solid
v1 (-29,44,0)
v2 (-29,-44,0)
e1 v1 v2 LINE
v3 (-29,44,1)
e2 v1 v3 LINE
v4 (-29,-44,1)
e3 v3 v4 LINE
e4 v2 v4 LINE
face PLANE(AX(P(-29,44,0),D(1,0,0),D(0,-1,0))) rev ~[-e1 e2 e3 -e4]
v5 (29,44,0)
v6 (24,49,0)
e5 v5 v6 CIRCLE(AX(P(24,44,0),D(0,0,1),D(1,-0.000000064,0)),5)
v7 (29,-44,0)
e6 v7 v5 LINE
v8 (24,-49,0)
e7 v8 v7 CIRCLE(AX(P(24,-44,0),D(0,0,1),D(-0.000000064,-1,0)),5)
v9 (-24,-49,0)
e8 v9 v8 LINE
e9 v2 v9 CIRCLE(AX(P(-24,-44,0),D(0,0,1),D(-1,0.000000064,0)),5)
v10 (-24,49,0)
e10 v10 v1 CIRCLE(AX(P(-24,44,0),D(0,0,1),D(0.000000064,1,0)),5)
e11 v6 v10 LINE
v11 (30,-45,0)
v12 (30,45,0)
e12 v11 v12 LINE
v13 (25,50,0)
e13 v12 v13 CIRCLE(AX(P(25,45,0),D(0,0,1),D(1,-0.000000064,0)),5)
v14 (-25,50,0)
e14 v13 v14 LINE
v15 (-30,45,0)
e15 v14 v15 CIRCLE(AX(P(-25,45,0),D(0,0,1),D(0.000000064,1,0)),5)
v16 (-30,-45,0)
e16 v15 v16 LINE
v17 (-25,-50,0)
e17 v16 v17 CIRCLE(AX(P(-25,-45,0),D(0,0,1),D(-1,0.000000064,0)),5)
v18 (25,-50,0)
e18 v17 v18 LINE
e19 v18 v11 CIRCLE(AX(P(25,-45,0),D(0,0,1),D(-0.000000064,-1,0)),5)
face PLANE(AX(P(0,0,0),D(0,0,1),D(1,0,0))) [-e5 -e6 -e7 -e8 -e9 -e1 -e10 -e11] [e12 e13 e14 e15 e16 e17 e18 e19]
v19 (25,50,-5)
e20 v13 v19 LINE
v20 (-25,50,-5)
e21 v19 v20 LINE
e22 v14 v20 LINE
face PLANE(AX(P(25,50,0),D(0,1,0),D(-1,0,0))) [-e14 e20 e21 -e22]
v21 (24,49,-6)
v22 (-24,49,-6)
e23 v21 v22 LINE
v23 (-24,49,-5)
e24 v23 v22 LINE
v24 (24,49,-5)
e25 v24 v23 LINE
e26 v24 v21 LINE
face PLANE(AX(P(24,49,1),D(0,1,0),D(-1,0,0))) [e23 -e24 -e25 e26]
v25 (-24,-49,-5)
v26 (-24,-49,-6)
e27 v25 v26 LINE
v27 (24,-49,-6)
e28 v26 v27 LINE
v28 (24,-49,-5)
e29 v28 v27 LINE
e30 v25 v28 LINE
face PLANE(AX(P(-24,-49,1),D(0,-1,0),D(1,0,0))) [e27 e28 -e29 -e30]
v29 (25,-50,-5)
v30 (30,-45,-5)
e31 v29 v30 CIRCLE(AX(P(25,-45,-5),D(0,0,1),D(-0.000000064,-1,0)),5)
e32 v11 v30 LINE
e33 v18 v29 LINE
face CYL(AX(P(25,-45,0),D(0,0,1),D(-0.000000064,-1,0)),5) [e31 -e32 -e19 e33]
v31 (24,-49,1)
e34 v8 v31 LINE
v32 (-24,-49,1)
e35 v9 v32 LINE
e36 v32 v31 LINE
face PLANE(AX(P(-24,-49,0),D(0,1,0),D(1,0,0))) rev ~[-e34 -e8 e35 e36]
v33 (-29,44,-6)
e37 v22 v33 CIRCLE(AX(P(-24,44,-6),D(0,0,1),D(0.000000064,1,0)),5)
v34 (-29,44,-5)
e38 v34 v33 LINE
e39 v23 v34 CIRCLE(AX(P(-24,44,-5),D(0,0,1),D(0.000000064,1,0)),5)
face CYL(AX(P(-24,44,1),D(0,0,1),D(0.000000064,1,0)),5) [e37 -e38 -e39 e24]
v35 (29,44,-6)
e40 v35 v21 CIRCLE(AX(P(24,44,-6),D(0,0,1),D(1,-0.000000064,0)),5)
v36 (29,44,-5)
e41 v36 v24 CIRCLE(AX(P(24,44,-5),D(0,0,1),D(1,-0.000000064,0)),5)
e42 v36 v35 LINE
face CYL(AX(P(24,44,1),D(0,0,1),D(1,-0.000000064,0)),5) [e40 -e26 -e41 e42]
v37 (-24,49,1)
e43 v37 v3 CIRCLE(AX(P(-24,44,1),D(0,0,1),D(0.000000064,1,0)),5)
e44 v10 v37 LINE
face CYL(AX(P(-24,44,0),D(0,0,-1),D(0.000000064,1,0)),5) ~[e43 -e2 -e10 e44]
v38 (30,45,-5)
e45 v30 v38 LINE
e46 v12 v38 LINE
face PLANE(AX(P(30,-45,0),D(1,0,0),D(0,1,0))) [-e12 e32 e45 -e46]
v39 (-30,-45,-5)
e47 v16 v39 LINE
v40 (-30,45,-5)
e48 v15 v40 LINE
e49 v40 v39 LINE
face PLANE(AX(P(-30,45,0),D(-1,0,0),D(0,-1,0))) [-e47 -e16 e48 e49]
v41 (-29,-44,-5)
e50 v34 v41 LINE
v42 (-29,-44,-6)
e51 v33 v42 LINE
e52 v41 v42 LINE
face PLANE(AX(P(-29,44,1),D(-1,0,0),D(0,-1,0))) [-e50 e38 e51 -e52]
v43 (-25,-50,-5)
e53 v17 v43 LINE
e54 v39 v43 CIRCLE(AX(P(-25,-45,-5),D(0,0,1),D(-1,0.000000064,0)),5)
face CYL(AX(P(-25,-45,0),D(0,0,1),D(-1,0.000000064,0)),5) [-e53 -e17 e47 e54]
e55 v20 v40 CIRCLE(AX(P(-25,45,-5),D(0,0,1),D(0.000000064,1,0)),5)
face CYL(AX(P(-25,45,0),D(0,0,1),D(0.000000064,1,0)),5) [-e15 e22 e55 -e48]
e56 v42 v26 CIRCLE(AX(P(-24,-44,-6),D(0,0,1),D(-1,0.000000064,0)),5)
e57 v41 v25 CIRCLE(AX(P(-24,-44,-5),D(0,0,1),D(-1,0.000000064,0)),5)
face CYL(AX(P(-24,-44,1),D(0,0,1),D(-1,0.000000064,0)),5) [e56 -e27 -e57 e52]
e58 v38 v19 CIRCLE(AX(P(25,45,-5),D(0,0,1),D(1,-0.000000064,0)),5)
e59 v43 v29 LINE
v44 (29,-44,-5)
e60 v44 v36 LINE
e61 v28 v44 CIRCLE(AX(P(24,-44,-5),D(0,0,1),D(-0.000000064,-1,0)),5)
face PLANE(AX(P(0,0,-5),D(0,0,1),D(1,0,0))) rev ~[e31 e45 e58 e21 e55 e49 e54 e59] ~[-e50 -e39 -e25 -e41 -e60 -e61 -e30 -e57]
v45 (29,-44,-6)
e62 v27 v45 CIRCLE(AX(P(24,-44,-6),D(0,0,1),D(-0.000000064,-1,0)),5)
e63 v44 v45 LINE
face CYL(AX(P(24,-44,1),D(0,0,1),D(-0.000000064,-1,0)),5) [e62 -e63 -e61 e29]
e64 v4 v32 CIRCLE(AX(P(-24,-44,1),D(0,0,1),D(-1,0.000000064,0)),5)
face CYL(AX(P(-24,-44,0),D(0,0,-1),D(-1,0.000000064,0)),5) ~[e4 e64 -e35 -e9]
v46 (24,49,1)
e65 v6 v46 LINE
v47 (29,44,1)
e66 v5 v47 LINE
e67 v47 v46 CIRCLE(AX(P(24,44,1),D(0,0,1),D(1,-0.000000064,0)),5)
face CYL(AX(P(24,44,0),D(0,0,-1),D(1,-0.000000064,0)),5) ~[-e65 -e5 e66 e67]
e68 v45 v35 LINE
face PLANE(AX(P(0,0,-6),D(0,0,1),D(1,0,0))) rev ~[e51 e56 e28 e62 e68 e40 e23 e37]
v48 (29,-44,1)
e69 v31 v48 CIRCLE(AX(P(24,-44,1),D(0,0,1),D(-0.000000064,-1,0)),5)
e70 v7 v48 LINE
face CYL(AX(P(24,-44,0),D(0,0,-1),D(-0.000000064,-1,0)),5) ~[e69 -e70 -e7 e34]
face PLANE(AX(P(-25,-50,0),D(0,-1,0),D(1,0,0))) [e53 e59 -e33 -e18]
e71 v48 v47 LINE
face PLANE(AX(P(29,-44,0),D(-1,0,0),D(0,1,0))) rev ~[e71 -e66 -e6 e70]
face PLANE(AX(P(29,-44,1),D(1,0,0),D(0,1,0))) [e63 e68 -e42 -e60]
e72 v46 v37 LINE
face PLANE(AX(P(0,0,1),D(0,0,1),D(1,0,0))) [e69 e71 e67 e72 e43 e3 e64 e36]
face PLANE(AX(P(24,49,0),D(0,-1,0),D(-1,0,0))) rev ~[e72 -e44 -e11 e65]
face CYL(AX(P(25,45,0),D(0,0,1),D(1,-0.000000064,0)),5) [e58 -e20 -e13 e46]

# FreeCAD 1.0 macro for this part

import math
import FreeCAD as App
import Part
import Sketcher

V = App.Vector
Q = App.Units.Quantity

doc = App.newDocument("Part")
params = doc.addObject("Spreadsheet::Sheet", "Params")
for row, (alias, value) in enumerate([
    ("sketch1_radius", "5 mm"),
    ("sketch1_width", "48 mm"),
    ("sketch1_height", "88 mm"),
    ("pad1_length", "1 mm"),
    ("sketch2_radius", "5 mm"),
    ("sketch2_width", "50 mm"),
    ("sketch2_height", "90 mm"),
    ("pad2_length", "5 mm"),
    ("sketch3_radius", "5 mm"),
    ("sketch3_width", "48 mm"),
    ("sketch3_height", "88 mm"),
    ("pad3_length", "7 mm"),
], start=1):
    params.set(f"A{row}", alias)
    params.set(f"B{row}", "=" + value)
    params.setAlias(f"B{row}", alias)

body = doc.addObject("PartDesign::Body", "Body")

# Sketch on XY plane
sketch1 = body.newObject("Sketcher::SketchObject", "Sketch")
sketch1.AttachmentSupport = (doc.getObject("XY_Plane"), [""])
sketch1.MapMode = "FlatFace"
sketch1.addGeometry([
    Part.LineSegment(V(-29, 44, 0), V(-29, -44, 0)),  # 0
    Part.ArcOfCircle(Part.Circle(V(-24, -44, 0), V(0, 0, 1), 5), math.radians(180), math.radians(270)),  # 1
    Part.LineSegment(V(-24, -49, 0), V(24, -49, 0)),  # 2
    Part.ArcOfCircle(Part.Circle(V(24, -44, 0), V(0, 0, 1), 5), math.radians(-90), math.radians(0)),  # 3
    Part.LineSegment(V(29, -44, 0), V(29, 44, 0)),  # 4
    Part.ArcOfCircle(Part.Circle(V(24, 44, 0), V(0, 0, 1), 5), math.radians(0), math.radians(90)),  # 5
    Part.LineSegment(V(24, 49, 0), V(-24, 49, 0)),  # 6
    Part.ArcOfCircle(Part.Circle(V(-24, 44, 0), V(0, 0, 1), 5), math.radians(90), math.radians(180)),  # 7
], False)
sketch1.addConstraint([
    Sketcher.Constraint("Tangent", 0, 2, 1, 1),
    Sketcher.Constraint("Tangent", 1, 2, 2, 1),
    Sketcher.Constraint("Tangent", 2, 2, 3, 1),
    Sketcher.Constraint("Tangent", 3, 2, 4, 1),
    Sketcher.Constraint("Tangent", 4, 2, 5, 1),
    Sketcher.Constraint("Tangent", 5, 2, 6, 1),
    Sketcher.Constraint("Tangent", 6, 2, 7, 1),
    Sketcher.Constraint("Tangent", 7, 2, 0, 1),
    Sketcher.Constraint("Vertical", 0),
    Sketcher.Constraint("Horizontal", 2),
    Sketcher.Constraint("Vertical", 4),
    Sketcher.Constraint("Horizontal", 6),
    Sketcher.Constraint("Equal", 1, 3),
    Sketcher.Constraint("Equal", 3, 5),
    Sketcher.Constraint("Equal", 5, 7),
    Sketcher.Constraint("Symmetric", 1, 3, 5, 3, -1, 1),
    Sketcher.Constraint("Radius", 1, Q("5 mm")),
    Sketcher.Constraint("DistanceX", 2, 1, 2, 2, Q("48 mm")),
    Sketcher.Constraint("DistanceY", 0, 2, 0, 1, Q("88 mm")),
])
sketch1.setExpression("Constraints[16]", "Params.sketch1_radius")
sketch1.setExpression("Constraints[17]", "Params.sketch1_width")
sketch1.setExpression("Constraints[18]", "Params.sketch1_height")
pad1 = body.newObject("PartDesign::Pad", "Pad")
pad1.Profile = sketch1
pad1.setExpression("Length", "Params.pad1_length")

# Sketch on XY plane
sketch2 = body.newObject("Sketcher::SketchObject", "Sketch001")
sketch2.AttachmentSupport = (doc.getObject("XY_Plane"), [""])
sketch2.MapMode = "FlatFace"
sketch2.addGeometry([
    Part.LineSegment(V(-30, 45, 0), V(-30, -45, 0)),  # 0
    Part.ArcOfCircle(Part.Circle(V(-25, -45, 0), V(0, 0, 1), 5), math.radians(180), math.radians(270)),  # 1
    Part.LineSegment(V(-25, -50, 0), V(25, -50, 0)),  # 2
    Part.ArcOfCircle(Part.Circle(V(25, -45, 0), V(0, 0, 1), 5), math.radians(-90), math.radians(0)),  # 3
    Part.LineSegment(V(30, -45, 0), V(30, 45, 0)),  # 4
    Part.ArcOfCircle(Part.Circle(V(25, 45, 0), V(0, 0, 1), 5), math.radians(0), math.radians(90)),  # 5
    Part.LineSegment(V(25, 50, 0), V(-25, 50, 0)),  # 6
    Part.ArcOfCircle(Part.Circle(V(-25, 45, 0), V(0, 0, 1), 5), math.radians(90), math.radians(180)),  # 7
], False)
sketch2.addConstraint([
    Sketcher.Constraint("Tangent", 0, 2, 1, 1),
    Sketcher.Constraint("Tangent", 1, 2, 2, 1),
    Sketcher.Constraint("Tangent", 2, 2, 3, 1),
    Sketcher.Constraint("Tangent", 3, 2, 4, 1),
    Sketcher.Constraint("Tangent", 4, 2, 5, 1),
    Sketcher.Constraint("Tangent", 5, 2, 6, 1),
    Sketcher.Constraint("Tangent", 6, 2, 7, 1),
    Sketcher.Constraint("Tangent", 7, 2, 0, 1),
    Sketcher.Constraint("Vertical", 0),
    Sketcher.Constraint("Horizontal", 2),
    Sketcher.Constraint("Vertical", 4),
    Sketcher.Constraint("Horizontal", 6),
    Sketcher.Constraint("Equal", 1, 3),
    Sketcher.Constraint("Equal", 3, 5),
    Sketcher.Constraint("Equal", 5, 7),
    Sketcher.Constraint("Symmetric", 1, 3, 5, 3, -1, 1),
    Sketcher.Constraint("Radius", 1, Q("5 mm")),
    Sketcher.Constraint("DistanceX", 2, 1, 2, 2, Q("50 mm")),
    Sketcher.Constraint("DistanceY", 0, 2, 0, 1, Q("90 mm")),
])
sketch2.setExpression("Constraints[16]", "Params.sketch2_radius")
sketch2.setExpression("Constraints[17]", "Params.sketch2_width")
sketch2.setExpression("Constraints[18]", "Params.sketch2_height")
pad2 = body.newObject("PartDesign::Pad", "Pad001")
pad2.Profile = sketch2
pad2.setExpression("Length", "Params.pad2_length")
pad2.Reversed = True

# Sketch on XY plane
sketch3 = body.newObject("Sketcher::SketchObject", "Sketch002")
sketch3.AttachmentSupport = (doc.getObject("XY_Plane"), [""])
sketch3.MapMode = "FlatFace"
sketch3.AttachmentOffset = App.Placement(V(0, 0, 1), App.Rotation())
sketch3.addGeometry([
    Part.LineSegment(V(-29, 44, 0), V(-29, -44, 0)),  # 0
    Part.ArcOfCircle(Part.Circle(V(-24, -44, 0), V(0, 0, 1), 5), math.radians(180), math.radians(270)),  # 1
    Part.LineSegment(V(-24, -49, 0), V(24, -49, 0)),  # 2
    Part.ArcOfCircle(Part.Circle(V(24, -44, 0), V(0, 0, 1), 5), math.radians(-90), math.radians(0)),  # 3
    Part.LineSegment(V(29, -44, 0), V(29, 44, 0)),  # 4
    Part.ArcOfCircle(Part.Circle(V(24, 44, 0), V(0, 0, 1), 5), math.radians(0), math.radians(90)),  # 5
    Part.LineSegment(V(24, 49, 0), V(-24, 49, 0)),  # 6
    Part.ArcOfCircle(Part.Circle(V(-24, 44, 0), V(0, 0, 1), 5), math.radians(90), math.radians(180)),  # 7
], False)
sketch3.addConstraint([
    Sketcher.Constraint("Tangent", 0, 2, 1, 1),
    Sketcher.Constraint("Tangent", 1, 2, 2, 1),
    Sketcher.Constraint("Tangent", 2, 2, 3, 1),
    Sketcher.Constraint("Tangent", 3, 2, 4, 1),
    Sketcher.Constraint("Tangent", 4, 2, 5, 1),
    Sketcher.Constraint("Tangent", 5, 2, 6, 1),
    Sketcher.Constraint("Tangent", 6, 2, 7, 1),
    Sketcher.Constraint("Tangent", 7, 2, 0, 1),
    Sketcher.Constraint("Vertical", 0),
    Sketcher.Constraint("Horizontal", 2),
    Sketcher.Constraint("Vertical", 4),
    Sketcher.Constraint("Horizontal", 6),
    Sketcher.Constraint("Equal", 1, 3),
    Sketcher.Constraint("Equal", 3, 5),
    Sketcher.Constraint("Equal", 5, 7),
    Sketcher.Constraint("Symmetric", 1, 3, 5, 3, -1, 1),
    Sketcher.Constraint("Radius", 1, Q("5 mm")),
    Sketcher.Constraint("DistanceX", 2, 1, 2, 2, Q("48 mm")),
    Sketcher.Constraint("DistanceY", 0, 2, 0, 1, Q("88 mm")),
])
sketch3.setExpression("Constraints[16]", "Params.sketch3_radius")
sketch3.setExpression("Constraints[17]", "Params.sketch3_width")
sketch3.setExpression("Constraints[18]", "Params.sketch3_height")
pad3 = body.newObject("PartDesign::Pad", "Pad002")
pad3.Profile = sketch3
pad3.setExpression("Length", "Params.pad3_length")
pad3.Reversed = True

doc.recompute()
